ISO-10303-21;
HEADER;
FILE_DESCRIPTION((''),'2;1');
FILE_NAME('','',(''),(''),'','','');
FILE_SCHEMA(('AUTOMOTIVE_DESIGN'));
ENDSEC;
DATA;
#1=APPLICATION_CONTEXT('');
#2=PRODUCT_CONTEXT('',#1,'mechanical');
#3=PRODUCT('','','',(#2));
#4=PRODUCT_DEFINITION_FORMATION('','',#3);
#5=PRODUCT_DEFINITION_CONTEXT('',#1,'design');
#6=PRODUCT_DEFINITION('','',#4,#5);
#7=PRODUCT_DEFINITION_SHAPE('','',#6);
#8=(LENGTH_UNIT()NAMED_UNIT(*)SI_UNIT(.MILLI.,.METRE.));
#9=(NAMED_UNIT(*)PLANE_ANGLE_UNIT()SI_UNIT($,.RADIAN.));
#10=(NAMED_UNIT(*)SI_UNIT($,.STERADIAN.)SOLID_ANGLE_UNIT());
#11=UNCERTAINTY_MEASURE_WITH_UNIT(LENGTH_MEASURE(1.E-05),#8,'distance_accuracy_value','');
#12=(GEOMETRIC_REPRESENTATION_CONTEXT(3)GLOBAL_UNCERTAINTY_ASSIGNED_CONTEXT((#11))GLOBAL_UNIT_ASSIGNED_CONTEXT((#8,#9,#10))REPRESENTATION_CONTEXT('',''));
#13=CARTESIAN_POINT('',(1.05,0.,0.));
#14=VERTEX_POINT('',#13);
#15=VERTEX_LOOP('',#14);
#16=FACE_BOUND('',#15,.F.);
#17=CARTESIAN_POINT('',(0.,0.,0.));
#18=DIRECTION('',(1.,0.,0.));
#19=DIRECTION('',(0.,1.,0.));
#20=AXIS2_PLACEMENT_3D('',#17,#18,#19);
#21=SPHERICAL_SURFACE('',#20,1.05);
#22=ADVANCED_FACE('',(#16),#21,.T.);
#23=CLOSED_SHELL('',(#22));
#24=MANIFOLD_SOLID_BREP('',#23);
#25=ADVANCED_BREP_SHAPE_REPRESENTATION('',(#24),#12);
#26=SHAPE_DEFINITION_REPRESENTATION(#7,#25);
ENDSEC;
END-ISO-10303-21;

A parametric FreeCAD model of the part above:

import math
import FreeCAD as App
import Part
import Sketcher

V = App.Vector
Q = App.Units.Quantity

doc = App.newDocument("Part")
body = doc.addObject("PartDesign::Body", "Body")

# Sketch on XY plane
sketch1 = body.newObject("Sketcher::SketchObject", "Sketch")
sketch1.AttachmentSupport = (doc.getObject("XY_Plane"), [""])
sketch1.MapMode = "FlatFace"
sketch1.addGeometry([
    Part.LineSegment(V(-1.05, 0, 0), V(1.05, 0, 0)),
    Part.ArcOfCircle(Part.Circle(V(0, 0, 0), V(0, 0, 1), 1.05), math.radians(0), math.radians(180)),
], False)
sketch1.addConstraint([
    Sketcher.Constraint("Coincident", 0, 1, 1, 2),
    Sketcher.Constraint("Coincident", 1, 1, 0, 2),
    Sketcher.Constraint("Horizontal", 0),
    Sketcher.Constraint("Coincident", 1, 3, -1, 1),
    Sketcher.Constraint("PointOnObject", 0, 1, -1),
    Sketcher.Constraint("Radius", 1, Q("1.05 mm")),
])
revolution = body.newObject("PartDesign::Revolution", "Revolution")
revolution.Profile = sketch1
revolution.ReferenceAxis = (sketch1, ["H_Axis"])
revolution.Angle = 360

doc.recompute()
